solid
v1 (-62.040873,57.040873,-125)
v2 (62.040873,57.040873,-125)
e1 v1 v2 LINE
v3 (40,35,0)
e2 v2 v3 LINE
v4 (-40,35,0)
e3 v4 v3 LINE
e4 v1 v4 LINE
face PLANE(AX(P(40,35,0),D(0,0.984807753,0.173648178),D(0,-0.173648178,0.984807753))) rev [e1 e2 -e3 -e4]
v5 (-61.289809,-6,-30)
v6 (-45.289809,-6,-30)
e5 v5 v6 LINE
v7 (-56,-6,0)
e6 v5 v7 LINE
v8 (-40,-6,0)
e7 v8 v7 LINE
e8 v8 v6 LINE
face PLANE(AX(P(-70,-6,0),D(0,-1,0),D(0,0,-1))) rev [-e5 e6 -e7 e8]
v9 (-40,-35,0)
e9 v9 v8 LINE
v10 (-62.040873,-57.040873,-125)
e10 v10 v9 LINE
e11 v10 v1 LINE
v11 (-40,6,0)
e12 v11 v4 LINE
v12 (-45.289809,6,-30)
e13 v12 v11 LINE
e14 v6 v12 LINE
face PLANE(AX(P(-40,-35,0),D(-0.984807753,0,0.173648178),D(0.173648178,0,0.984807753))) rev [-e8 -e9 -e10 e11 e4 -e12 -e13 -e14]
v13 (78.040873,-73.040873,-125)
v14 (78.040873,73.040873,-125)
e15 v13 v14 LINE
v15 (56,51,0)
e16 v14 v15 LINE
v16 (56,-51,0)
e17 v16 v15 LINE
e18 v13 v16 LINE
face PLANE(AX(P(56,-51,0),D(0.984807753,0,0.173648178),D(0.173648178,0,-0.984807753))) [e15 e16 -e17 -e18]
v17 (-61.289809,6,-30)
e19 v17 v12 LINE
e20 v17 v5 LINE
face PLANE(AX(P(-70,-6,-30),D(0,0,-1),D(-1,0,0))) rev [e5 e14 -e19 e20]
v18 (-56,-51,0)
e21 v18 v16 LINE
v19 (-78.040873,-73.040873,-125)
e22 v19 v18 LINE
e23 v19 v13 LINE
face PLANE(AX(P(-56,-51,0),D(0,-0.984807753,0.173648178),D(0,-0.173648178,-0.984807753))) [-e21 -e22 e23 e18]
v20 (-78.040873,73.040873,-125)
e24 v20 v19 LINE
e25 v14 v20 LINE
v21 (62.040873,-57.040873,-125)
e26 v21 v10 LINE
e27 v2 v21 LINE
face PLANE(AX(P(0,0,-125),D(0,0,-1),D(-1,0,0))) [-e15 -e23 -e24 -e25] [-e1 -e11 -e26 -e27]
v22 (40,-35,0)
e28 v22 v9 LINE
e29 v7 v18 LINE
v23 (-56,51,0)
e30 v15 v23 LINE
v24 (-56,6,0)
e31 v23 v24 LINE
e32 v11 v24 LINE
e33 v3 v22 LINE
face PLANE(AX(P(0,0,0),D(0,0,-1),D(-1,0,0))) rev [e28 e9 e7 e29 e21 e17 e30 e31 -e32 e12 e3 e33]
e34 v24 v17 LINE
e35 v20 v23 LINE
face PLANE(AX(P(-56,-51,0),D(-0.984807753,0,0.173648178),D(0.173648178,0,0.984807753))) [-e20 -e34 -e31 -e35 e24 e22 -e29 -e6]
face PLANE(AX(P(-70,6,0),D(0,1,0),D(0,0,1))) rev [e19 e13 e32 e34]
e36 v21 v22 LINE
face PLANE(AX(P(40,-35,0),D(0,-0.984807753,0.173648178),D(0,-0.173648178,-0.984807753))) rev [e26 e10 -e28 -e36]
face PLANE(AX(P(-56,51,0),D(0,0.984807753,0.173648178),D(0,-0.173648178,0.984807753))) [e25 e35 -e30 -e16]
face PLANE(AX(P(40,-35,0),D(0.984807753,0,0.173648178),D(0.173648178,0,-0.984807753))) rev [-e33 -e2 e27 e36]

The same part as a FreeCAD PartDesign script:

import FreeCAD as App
import Part
import Sketcher
Q = App.Units.Quantity

doc = App.newDocument("Part")
params = doc.addObject("Spreadsheet::Sheet", "Params")
for row, (alias, value) in enumerate([
    ("sketch1_width", "112 mm"),
    ("sketch1_height", "102 mm"),
    ("pad1_length", "125 mm"),
    ("pad1_taper", "10 deg"),
    ("sketch2_width", "80 mm"),
    ("sketch2_height", "70 mm"),
    ("pocket1_length", "125 mm"),
    ("pocket1_taper", "10 deg"),
    ("sketch3_width", "12 mm"),
    ("sketch3_height", "30 mm"),
    ("pocket2_length", "20 mm"),
    ("sketch4_width", "12 mm"),
    ("sketch4_height", "30 mm"),
    ("pocket3_length", "10 mm"),
], start=1):
    params.set(f"A{row}", alias)
    params.set(f"B{row}", "=" + value)
    params.setAlias(f"B{row}", alias)

body = doc.addObject("PartDesign::Body", "Body")

sketch1 = body.newObject("Sketcher::SketchObject", "Sketch")
sketch1.AttachmentSupport = (doc.getObject("XY_Plane"), [""])
sketch1.MapMode = "FlatFace"
sketch1.addGeometry([
    Part.LineSegment(App.Vector(-56, 51, 0), App.Vector(-56, -51, 0)),
    Part.LineSegment(App.Vector(-56, -51, 0), App.Vector(56, -51, 0)),
    Part.LineSegment(App.Vector(56, -51, 0), App.Vector(56, 51, 0)),
    Part.LineSegment(App.Vector(56, 51, 0), App.Vector(-56, 51, 0)),
], False)
sketch1.addConstraint([
    Sketcher.Constraint("Coincident", 0, 2, 1, 1),
    Sketcher.Constraint("Coincident", 1, 2, 2, 1),
    Sketcher.Constraint("Coincident", 2, 2, 3, 1),
    Sketcher.Constraint("Coincident", 3, 2, 0, 1),
    Sketcher.Constraint("Vertical", 0),
    Sketcher.Constraint("Horizontal", 1),
    Sketcher.Constraint("Vertical", 2),
    Sketcher.Constraint("Horizontal", 3),
    Sketcher.Constraint("Symmetric", 0, 2, 2, 2, -1, 1),
    Sketcher.Constraint("DistanceX", 1, 1, 1, 2, Q("112 mm")),
    Sketcher.Constraint("DistanceY", 0, 2, 0, 1, Q("102 mm")),
])
sketch1.setExpression("Constraints[9]", "Params.sketch1_width")
sketch1.setExpression("Constraints[10]", "Params.sketch1_height")
pad1 = body.newObject("PartDesign::Pad", "Pad")
pad1.Profile = sketch1
pad1.setExpression("Length", "Params.pad1_length")
pad1.Reversed = True
pad1.setExpression("TaperAngle", "Params.pad1_taper")

sketch2 = body.newObject("Sketcher::SketchObject", "Sketch001")
sketch2.AttachmentSupport = (doc.getObject("XY_Plane"), [""])
sketch2.MapMode = "FlatFace"
sketch2.addGeometry([
    Part.LineSegment(App.Vector(40, 35, 0), App.Vector(40, -35, 0)),
    Part.LineSegment(App.Vector(40, -35, 0), App.Vector(-40, -35, 0)),
    Part.LineSegment(App.Vector(-40, -35, 0), App.Vector(-40, 35, 0)),
    Part.LineSegment(App.Vector(-40, 35, 0), App.Vector(40, 35, 0)),
], False)
sketch2.addConstraint([
    Sketcher.Constraint("Coincident", 0, 2, 1, 1),
    Sketcher.Constraint("Coincident", 1, 2, 2, 1),
    Sketcher.Constraint("Coincident", 2, 2, 3, 1),
    Sketcher.Constraint("Coincident", 3, 2, 0, 1),
    Sketcher.Constraint("Vertical", 0),
    Sketcher.Constraint("Horizontal", 1),
    Sketcher.Constraint("Vertical", 2),
    Sketcher.Constraint("Horizontal", 3),
    Sketcher.Constraint("Symmetric", 0, 2, 2, 2, -1, 1),
    Sketcher.Constraint("DistanceX", 1, 2, 1, 1, Q("80 mm")),
    Sketcher.Constraint("DistanceY", 0, 2, 0, 1, Q("70 mm")),
])
sketch2.setExpression("Constraints[9]", "Params.sketch2_width")
sketch2.setExpression("Constraints[10]", "Params.sketch2_height")
pocket1 = body.newObject("PartDesign::Pocket", "Pocket")
pocket1.Profile = sketch2
pocket1.setExpression("Length", "Params.pocket1_length")
pocket1.setExpression("TaperAngle", "Params.pocket1_taper")

sketch3 = body.newObject("Sketcher::SketchObject", "Sketch002")
sketch3.AttachmentSupport = (doc.getObject("YZ_Plane"), [""])
sketch3.MapMode = "FlatFace"
sketch3.AttachmentOffset = App.Placement(App.Vector(0, 0, -60), App.Rotation())
sketch3.addGeometry([
    Part.LineSegment(App.Vector(6, 0, 0), App.Vector(-6, 0, 0)),
    Part.LineSegment(App.Vector(-6, 0, 0), App.Vector(-6, -30, 0)),
    Part.LineSegment(App.Vector(-6, -30, 0), App.Vector(6, -30, 0)),
    Part.LineSegment(App.Vector(6, -30, 0), App.Vector(6, 0, 0)),
], False)
sketch3.addConstraint([
    Sketcher.Constraint("Coincident", 0, 2, 1, 1),
    Sketcher.Constraint("Coincident", 1, 2, 2, 1),
    Sketcher.Constraint("Coincident", 2, 2, 3, 1),
    Sketcher.Constraint("Coincident", 3, 2, 0, 1),
    Sketcher.Constraint("Horizontal", 0),
    Sketcher.Constraint("Vertical", 1),
    Sketcher.Constraint("Horizontal", 2),
    Sketcher.Constraint("Vertical", 3),
    Sketcher.Constraint("Symmetric", 0, 2, 3, 2, -1, 1),
    Sketcher.Constraint("DistanceX", 0, 2, 0, 1, Q("12 mm")),
    Sketcher.Constraint("DistanceY", 1, 2, 1, 1, Q("30 mm")),
])
sketch3.setExpression("Constraints[9]", "Params.sketch3_width")
sketch3.setExpression("Constraints[10]", "Params.sketch3_height")
pocket2 = body.newObject("PartDesign::Pocket", "Pocket001")
pocket2.Profile = sketch3
pocket2.setExpression("Length", "Params.pocket2_length")
pocket2.Reversed = True

sketch4 = body.newObject("Sketcher::SketchObject", "Sketch003")
sketch4.AttachmentSupport = (doc.getObject("YZ_Plane"), [""])
sketch4.MapMode = "FlatFace"
sketch4.AttachmentOffset = App.Placement(App.Vector(0, 0, -60), App.Rotation())
sketch4.addGeometry([
    Part.LineSegment(App.Vector(6, 0, 0), App.Vector(-6, 0, 0)),
    Part.LineSegment(App.Vector(-6, 0, 0), App.Vector(-6, -30, 0)),
    Part.LineSegment(App.Vector(-6, -30, 0), App.Vector(6, -30, 0)),
    Part.LineSegment(App.Vector(6, -30, 0), App.Vector(6, 0, 0)),
], False)
sketch4.addConstraint([
    Sketcher.Constraint("Coincident", 0, 2, 1, 1),
    Sketcher.Constraint("Coincident", 1, 2, 2, 1),
    Sketcher.Constraint("Coincident", 2, 2, 3, 1),
    Sketcher.Constraint("Coincident", 3, 2, 0, 1),
    Sketcher.Constraint("Horizontal", 0),
    Sketcher.Constraint("Vertical", 1),
    Sketcher.Constraint("Horizontal", 2),
    Sketcher.Constraint("Vertical", 3),
    Sketcher.Constraint("Symmetric", 0, 2, 3, 2, -1, 1),
    Sketcher.Constraint("DistanceX", 0, 2, 0, 1, Q("12 mm")),
    Sketcher.Constraint("DistanceY", 1, 2, 1, 1, Q("30 mm")),
])
sketch4.setExpression("Constraints[9]", "Params.sketch4_width")
sketch4.setExpression("Constraints[10]", "Params.sketch4_height")
pocket3 = body.newObject("PartDesign::Pocket", "Pocket002")
pocket3.Profile = sketch4
pocket3.setExpression("Length", "Params.pocket3_length")

doc.recompute()
